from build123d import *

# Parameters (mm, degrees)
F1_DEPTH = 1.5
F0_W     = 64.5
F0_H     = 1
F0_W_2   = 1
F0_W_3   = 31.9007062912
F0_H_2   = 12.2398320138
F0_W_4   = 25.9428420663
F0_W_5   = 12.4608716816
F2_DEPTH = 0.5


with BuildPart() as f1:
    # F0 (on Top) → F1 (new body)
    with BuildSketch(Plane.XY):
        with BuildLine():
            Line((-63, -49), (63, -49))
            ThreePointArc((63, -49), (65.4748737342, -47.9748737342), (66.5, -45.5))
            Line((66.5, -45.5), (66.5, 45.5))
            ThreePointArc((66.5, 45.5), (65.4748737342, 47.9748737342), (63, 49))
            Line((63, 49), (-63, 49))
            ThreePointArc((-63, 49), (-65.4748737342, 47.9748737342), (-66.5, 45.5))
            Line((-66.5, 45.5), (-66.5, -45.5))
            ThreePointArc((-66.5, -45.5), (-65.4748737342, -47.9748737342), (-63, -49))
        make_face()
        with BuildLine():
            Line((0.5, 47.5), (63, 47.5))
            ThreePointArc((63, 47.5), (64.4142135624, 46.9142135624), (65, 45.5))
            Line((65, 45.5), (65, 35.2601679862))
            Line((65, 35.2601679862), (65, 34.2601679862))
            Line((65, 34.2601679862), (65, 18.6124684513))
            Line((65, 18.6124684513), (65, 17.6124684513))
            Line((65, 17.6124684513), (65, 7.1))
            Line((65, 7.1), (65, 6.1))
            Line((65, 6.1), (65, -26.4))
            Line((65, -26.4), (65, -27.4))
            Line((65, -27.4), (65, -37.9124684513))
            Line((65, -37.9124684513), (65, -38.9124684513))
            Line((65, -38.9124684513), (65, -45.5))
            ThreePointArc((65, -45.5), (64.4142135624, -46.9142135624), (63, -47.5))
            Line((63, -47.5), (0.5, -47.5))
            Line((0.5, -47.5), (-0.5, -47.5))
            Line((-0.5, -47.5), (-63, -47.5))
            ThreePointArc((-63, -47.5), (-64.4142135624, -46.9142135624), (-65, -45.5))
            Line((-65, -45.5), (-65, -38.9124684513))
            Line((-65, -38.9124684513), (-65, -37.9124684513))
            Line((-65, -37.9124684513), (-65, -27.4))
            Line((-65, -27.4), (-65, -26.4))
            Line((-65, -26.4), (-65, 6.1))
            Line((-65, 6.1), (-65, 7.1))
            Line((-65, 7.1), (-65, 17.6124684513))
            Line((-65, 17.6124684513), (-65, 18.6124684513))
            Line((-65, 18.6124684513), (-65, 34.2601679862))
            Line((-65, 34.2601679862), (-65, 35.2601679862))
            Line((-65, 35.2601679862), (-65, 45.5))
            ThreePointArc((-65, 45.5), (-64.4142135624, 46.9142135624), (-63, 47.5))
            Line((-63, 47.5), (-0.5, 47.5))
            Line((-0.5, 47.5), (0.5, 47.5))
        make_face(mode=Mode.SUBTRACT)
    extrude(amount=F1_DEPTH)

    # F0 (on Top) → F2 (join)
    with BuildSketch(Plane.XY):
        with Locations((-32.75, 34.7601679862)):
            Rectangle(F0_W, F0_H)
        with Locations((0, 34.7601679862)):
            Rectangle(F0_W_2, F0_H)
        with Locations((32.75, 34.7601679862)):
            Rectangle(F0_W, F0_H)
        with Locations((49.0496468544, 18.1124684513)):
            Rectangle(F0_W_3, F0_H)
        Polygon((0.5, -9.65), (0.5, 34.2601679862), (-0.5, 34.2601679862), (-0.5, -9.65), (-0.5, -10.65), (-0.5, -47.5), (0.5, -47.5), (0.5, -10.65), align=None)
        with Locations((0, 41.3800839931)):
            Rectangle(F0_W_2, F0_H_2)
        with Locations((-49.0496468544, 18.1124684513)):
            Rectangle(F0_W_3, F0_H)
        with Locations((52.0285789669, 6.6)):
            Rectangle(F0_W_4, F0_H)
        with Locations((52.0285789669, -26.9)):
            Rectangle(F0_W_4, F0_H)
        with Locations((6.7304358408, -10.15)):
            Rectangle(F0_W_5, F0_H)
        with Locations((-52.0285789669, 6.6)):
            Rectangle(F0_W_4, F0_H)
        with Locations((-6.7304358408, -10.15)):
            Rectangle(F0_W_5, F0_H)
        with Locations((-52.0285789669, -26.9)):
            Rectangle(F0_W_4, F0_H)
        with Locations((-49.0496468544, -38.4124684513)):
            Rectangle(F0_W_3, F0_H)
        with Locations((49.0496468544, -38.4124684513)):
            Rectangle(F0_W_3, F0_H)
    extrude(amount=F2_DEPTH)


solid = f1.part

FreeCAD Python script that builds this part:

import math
import FreeCAD as App
import Part
import Sketcher
Q = App.Units.Quantity

doc = App.newDocument("Part")
body = doc.addObject("PartDesign::Body", "Body")

# Sketch on XY plane
sketch1 = body.newObject("Sketcher::SketchObject", "Sketch")
sketch1.AttachmentSupport = (doc.getObject("XY_Plane"), [""])
sketch1.MapMode = "FlatFace"
sketch1.addGeometry(Part.LineSegment(App.Vector(-63, -49, 0), App.Vector(63, -49, 0)), False)
sketch1.addGeometry(Part.ArcOfCircle(Part.Circle(App.Vector(63, -45.5, 0), App.Vector(0, 0, 1), 3.5), math.radians(-90), math.radians(0)), False)
sketch1.addGeometry(Part.LineSegment(App.Vector(66.5, -45.5, 0), App.Vector(66.5, 45.5, 0)), False)
sketch1.addGeometry(Part.ArcOfCircle(Part.Circle(App.Vector(63, 45.5, 0), App.Vector(0, 0, 1), 3.5), math.radians(0), math.radians(90)), False)
sketch1.addGeometry(Part.LineSegment(App.Vector(63, 49, 0), App.Vector(-63, 49, 0)), False)
sketch1.addGeometry(Part.ArcOfCircle(Part.Circle(App.Vector(-63, 45.5, 0), App.Vector(0, 0, 1), 3.5), math.radians(90), math.radians(180)), False)
sketch1.addGeometry(Part.LineSegment(App.Vector(-66.5, 45.5, 0), App.Vector(-66.5, -45.5, 0)), False)
sketch1.addGeometry(Part.ArcOfCircle(Part.Circle(App.Vector(-63, -45.5, 0), App.Vector(0, 0, 1), 3.5), math.radians(180), math.radians(270)), False)
sketch1.addGeometry(Part.LineSegment(App.Vector(-63, 47.5, 0), App.Vector(63, 47.5, 0)), False)
sketch1.addGeometry(Part.ArcOfCircle(Part.Circle(App.Vector(63, 45.5, 0), App.Vector(0, 0, 1), 2), math.radians(0), math.radians(90)), False)
sketch1.addGeometry(Part.LineSegment(App.Vector(65, 45.5, 0), App.Vector(65, -45.5, 0)), False)
sketch1.addGeometry(Part.ArcOfCircle(Part.Circle(App.Vector(63, -45.5, 0), App.Vector(0, 0, 1), 2), math.radians(-90), math.radians(0)), False)
sketch1.addGeometry(Part.LineSegment(App.Vector(63, -47.5, 0), App.Vector(-63, -47.5, 0)), False)
sketch1.addGeometry(Part.ArcOfCircle(Part.Circle(App.Vector(-63, -45.5, 0), App.Vector(0, 0, 1), 2), math.radians(180), math.radians(270)), False)
sketch1.addGeometry(Part.LineSegment(App.Vector(-65, -45.5, 0), App.Vector(-65, 45.5, 0)), False)
sketch1.addGeometry(Part.ArcOfCircle(Part.Circle(App.Vector(-63, 45.5, 0), App.Vector(0, 0, 1), 2), math.radians(90), math.radians(180)), False)
sketch1.addConstraint(Sketcher.Constraint("Tangent", 0, 2, 1, 1))
sketch1.addConstraint(Sketcher.Constraint("Tangent", 1, 2, 2, 1))
sketch1.addConstraint(Sketcher.Constraint("Tangent", 2, 2, 3, 1))
sketch1.addConstraint(Sketcher.Constraint("Tangent", 3, 2, 4, 1))
sketch1.addConstraint(Sketcher.Constraint("Tangent", 4, 2, 5, 1))
sketch1.addConstraint(Sketcher.Constraint("Tangent", 5, 2, 6, 1))
sketch1.addConstraint(Sketcher.Constraint("Tangent", 6, 2, 7, 1))
sketch1.addConstraint(Sketcher.Constraint("Tangent", 7, 2, 0, 1))
sketch1.addConstraint(Sketcher.Constraint("Tangent", 8, 2, 9, 2))
sketch1.addConstraint(Sketcher.Constraint("Tangent", 9, 1, 10, 1))
sketch1.addConstraint(Sketcher.Constraint("Tangent", 10, 2, 11, 2))
sketch1.addConstraint(Sketcher.Constraint("Tangent", 11, 1, 12, 1))
sketch1.addConstraint(Sketcher.Constraint("Tangent", 12, 2, 13, 2))
sketch1.addConstraint(Sketcher.Constraint("Tangent", 13, 1, 14, 1))
sketch1.addConstraint(Sketcher.Constraint("Tangent", 14, 2, 15, 2))
sketch1.addConstraint(Sketcher.Constraint("Tangent", 15, 1, 8, 1))
sketch1.addConstraint(Sketcher.Constraint("Horizontal", 0))
sketch1.addConstraint(Sketcher.Constraint("Vertical", 2))
sketch1.addConstraint(Sketcher.Constraint("Horizontal", 4))
sketch1.addConstraint(Sketcher.Constraint("Vertical", 6))
sketch1.addConstraint(Sketcher.Constraint("Horizontal", 8))
sketch1.addConstraint(Sketcher.Constraint("Vertical", 10))
sketch1.addConstraint(Sketcher.Constraint("Horizontal", 12))
sketch1.addConstraint(Sketcher.Constraint("Vertical", 14))
sketch1.addConstraint(Sketcher.Constraint("Coincident", 9, 3, 3, 3))
sketch1.addConstraint(Sketcher.Constraint("Coincident", 11, 3, 1, 3))
sketch1.addConstraint(Sketcher.Constraint("Coincident", 13, 3, 7, 3))
sketch1.addConstraint(Sketcher.Constraint("Equal", 1, 3))
sketch1.addConstraint(Sketcher.Constraint("Equal", 3, 5))
sketch1.addConstraint(Sketcher.Constraint("Equal", 5, 7))
sketch1.addConstraint(Sketcher.Constraint("Equal", 13, 15))
sketch1.addConstraint(Sketcher.Constraint("Symmetric", 1, 3, 5, 3, -1, 1))
sketch1.addConstraint(Sketcher.Constraint("Radius", 9, Q("2 mm")))
sketch1.addConstraint(Sketcher.Constraint("Radius", 1, Q("3.5 mm")))
sketch1.addConstraint(Sketcher.Constraint("DistanceX", 0, 1, 0, 2, Q("126 mm")))
sketch1.addConstraint(Sketcher.Constraint("DistanceY", 2, 1, 2, 2, Q("91 mm")))
pad1 = body.newObject("PartDesign::Pad", "Pad")
pad1.Profile = sketch1
pad1.Length = 1.5

# Sketch on XY plane
sketch2 = body.newObject("Sketcher::SketchObject", "Sketch001")
sketch2.AttachmentSupport = (doc.getObject("XY_Plane"), [""])
sketch2.MapMode = "FlatFace"
sketch2.addGeometry(Part.LineSegment(App.Vector(-65, 35.260168, 0), App.Vector(-65, 34.260168, 0)), False)
sketch2.addGeometry(Part.LineSegment(App.Vector(-65, 34.260168, 0), App.Vector(-0.5, 34.260168, 0)), False)
sketch2.addGeometry(Part.LineSegment(App.Vector(-0.5, 34.260168, 0), App.Vector(-0.5, -9.65, 0)), False)
sketch2.addGeometry(Part.LineSegment(App.Vector(-0.5, -9.65, 0), App.Vector(-12.960872, -9.65, 0)), False)
sketch2.addGeometry(Part.LineSegment(App.Vector(-12.960872, -9.65, 0), App.Vector(-12.960872, -10.65, 0)), False)
sketch2.addGeometry(Part.LineSegment(App.Vector(-12.960872, -10.65, 0), App.Vector(-0.5, -10.65, 0)), False)
sketch2.addGeometry(Part.LineSegment(App.Vector(-0.5, -10.65, 0), App.Vector(-0.5, -47.5, 0)), False)
sketch2.addGeometry(Part.LineSegment(App.Vector(-0.5, -47.5, 0), App.Vector(0.5, -47.5, 0)), False)
sketch2.addGeometry(Part.LineSegment(App.Vector(0.5, -47.5, 0), App.Vector(0.5, -10.65, 0)), False)
sketch2.addGeometry(Part.LineSegment(App.Vector(0.5, -10.65, 0), App.Vector(12.960872, -10.65, 0)), False)
sketch2.addGeometry(Part.LineSegment(App.Vector(12.960872, -10.65, 0), App.Vector(12.960872, -9.65, 0)), False)
sketch2.addGeometry(Part.LineSegment(App.Vector(12.960872, -9.65, 0), App.Vector(0.5, -9.65, 0)), False)
sketch2.addGeometry(Part.LineSegment(App.Vector(0.5, -9.65, 0), App.Vector(0.5, 34.260168, 0)), False)
sketch2.addGeometry(Part.LineSegment(App.Vector(0.5, 34.260168, 0), App.Vector(65, 34.260168, 0)), False)
sketch2.addGeometry(Part.LineSegment(App.Vector(65, 34.260168, 0), App.Vector(65, 35.260168, 0)), False)
sketch2.addGeometry(Part.LineSegment(App.Vector(65, 35.260168, 0), App.Vector(0.5, 35.260168, 0)), False)
sketch2.addGeometry(Part.LineSegment(App.Vector(0.5, 35.260168, 0), App.Vector(0.5, 47.5, 0)), False)
sketch2.addGeometry(Part.LineSegment(App.Vector(0.5, 47.5, 0), App.Vector(-0.5, 47.5, 0)), False)
sketch2.addGeometry(Part.LineSegment(App.Vector(-0.5, 47.5, 0), App.Vector(-0.5, 35.260168, 0)), False)
sketch2.addGeometry(Part.LineSegment(App.Vector(-0.5, 35.260168, 0), App.Vector(-65, 35.260168, 0)), False)
sketch2.addGeometry(Part.LineSegment(App.Vector(33.099294, 18.612468, 0), App.Vector(33.099294, 17.612468, 0)), False)
sketch2.addGeometry(Part.LineSegment(App.Vector(33.099294, 17.612468, 0), App.Vector(65, 17.612468, 0)), False)
sketch2.addGeometry(Part.LineSegment(App.Vector(65, 17.612468, 0), App.Vector(65, 18.612468, 0)), False)
sketch2.addGeometry(Part.LineSegment(App.Vector(65, 18.612468, 0), App.Vector(33.099294, 18.612468, 0)), False)
sketch2.addGeometry(Part.LineSegment(App.Vector(-65, 18.612468, 0), App.Vector(-65, 17.612468, 0)), False)
sketch2.addGeometry(Part.LineSegment(App.Vector(-65, 17.612468, 0), App.Vector(-33.099294, 17.612468, 0)), False)
sketch2.addGeometry(Part.LineSegment(App.Vector(-33.099294, 17.612468, 0), App.Vector(-33.099294, 18.612468, 0)), False)
sketch2.addGeometry(Part.LineSegment(App.Vector(-33.099294, 18.612468, 0), App.Vector(-65, 18.612468, 0)), False)
sketch2.addGeometry(Part.LineSegment(App.Vector(39.057158, 7.1, 0), App.Vector(39.057158, 6.1, 0)), False)
sketch2.addGeometry(Part.LineSegment(App.Vector(39.057158, 6.1, 0), App.Vector(65, 6.1, 0)), False)
sketch2.addGeometry(Part.LineSegment(App.Vector(65, 6.1, 0), App.Vector(65, 7.1, 0)), False)
sketch2.addGeometry(Part.LineSegment(App.Vector(65, 7.1, 0), App.Vector(39.057158, 7.1, 0)), False)
sketch2.addGeometry(Part.LineSegment(App.Vector(39.057158, -26.4, 0), App.Vector(39.057158, -27.4, 0)), False)
sketch2.addGeometry(Part.LineSegment(App.Vector(39.057158, -27.4, 0), App.Vector(65, -27.4, 0)), False)
sketch2.addGeometry(Part.LineSegment(App.Vector(65, -27.4, 0), App.Vector(65, -26.4, 0)), False)
sketch2.addGeometry(Part.LineSegment(App.Vector(65, -26.4, 0), App.Vector(39.057158, -26.4, 0)), False)
sketch2.addGeometry(Part.LineSegment(App.Vector(-65, 7.1, 0), App.Vector(-65, 6.1, 0)), False)
sketch2.addGeometry(Part.LineSegment(App.Vector(-65, 6.1, 0), App.Vector(-39.057158, 6.1, 0)), False)
sketch2.addGeometry(Part.LineSegment(App.Vector(-39.057158, 6.1, 0), App.Vector(-39.057158, 7.1, 0)), False)
sketch2.addGeometry(Part.LineSegment(App.Vector(-39.057158, 7.1, 0), App.Vector(-65, 7.1, 0)), False)
sketch2.addGeometry(Part.LineSegment(App.Vector(-65, -26.4, 0), App.Vector(-65, -27.4, 0)), False)
sketch2.addGeometry(Part.LineSegment(App.Vector(-65, -27.4, 0), App.Vector(-39.057158, -27.4, 0)), False)
sketch2.addGeometry(Part.LineSegment(App.Vector(-39.057158, -27.4, 0), App.Vector(-39.057158, -26.4, 0)), False)
sketch2.addGeometry(Part.LineSegment(App.Vector(-39.057158, -26.4, 0), App.Vector(-65, -26.4, 0)), False)
sketch2.addGeometry(Part.LineSegment(App.Vector(-65, -37.912468, 0), App.Vector(-65, -38.912468, 0)), False)
sketch2.addGeometry(Part.LineSegment(App.Vector(-65, -38.912468, 0), App.Vector(-33.099294, -38.912468, 0)), False)
sketch2.addGeometry(Part.LineSegment(App.Vector(-33.099294, -38.912468, 0), App.Vector(-33.099294, -37.912468, 0)), False)
sketch2.addGeometry(Part.LineSegment(App.Vector(-33.099294, -37.912468, 0), App.Vector(-65, -37.912468, 0)), False)
sketch2.addGeometry(Part.LineSegment(App.Vector(33.099294, -37.912468, 0), App.Vector(33.099294, -38.912468, 0)), False)
sketch2.addGeometry(Part.LineSegment(App.Vector(33.099294, -38.912468, 0), App.Vector(65, -38.912468, 0)), False)
sketch2.addGeometry(Part.LineSegment(App.Vector(65, -38.912468, 0), App.Vector(65, -37.912468, 0)), False)
sketch2.addGeometry(Part.LineSegment(App.Vector(65, -37.912468, 0), App.Vector(33.099294, -37.912468, 0)), False)
sketch2.addConstraint(Sketcher.Constraint("Coincident", 0, 2, 1, 1))
sketch2.addConstraint(Sketcher.Constraint("Coincident", 1, 2, 2, 1))
sketch2.addConstraint(Sketcher.Constraint("Coincident", 2, 2, 3, 1))
sketch2.addConstraint(Sketcher.Constraint("Coincident", 3, 2, 4, 1))
sketch2.addConstraint(Sketcher.Constraint("Coincident", 4, 2, 5, 1))
sketch2.addConstraint(Sketcher.Constraint("Coincident", 5, 2, 6, 1))
sketch2.addConstraint(Sketcher.Constraint("Coincident", 6, 2, 7, 1))
sketch2.addConstraint(Sketcher.Constraint("Coincident", 7, 2, 8, 1))
sketch2.addConstraint(Sketcher.Constraint("Coincident", 8, 2, 9, 1))
sketch2.addConstraint(Sketcher.Constraint("Coincident", 9, 2, 10, 1))
sketch2.addConstraint(Sketcher.Constraint("Coincident", 10, 2, 11, 1))
sketch2.addConstraint(Sketcher.Constraint("Coincident", 11, 2, 12, 1))
sketch2.addConstraint(Sketcher.Constraint("Coincident", 12, 2, 13, 1))
sketch2.addConstraint(Sketcher.Constraint("Coincident", 13, 2, 14, 1))
sketch2.addConstraint(Sketcher.Constraint("Coincident", 14, 2, 15, 1))
sketch2.addConstraint(Sketcher.Constraint("Coincident", 15, 2, 16, 1))
sketch2.addConstraint(Sketcher.Constraint("Coincident", 16, 2, 17, 1))
sketch2.addConstraint(Sketcher.Constraint("Coincident", 17, 2, 18, 1))
sketch2.addConstraint(Sketcher.Constraint("Coincident", 18, 2, 19, 1))
sketch2.addConstraint(Sketcher.Constraint("Coincident", 19, 2, 0, 1))
sketch2.addConstraint(Sketcher.Constraint("Coincident", 20, 2, 21, 1))
sketch2.addConstraint(Sketcher.Constraint("Coincident", 21, 2, 22, 1))
sketch2.addConstraint(Sketcher.Constraint("Coincident", 22, 2, 23, 1))
sketch2.addConstraint(Sketcher.Constraint("Coincident", 23, 2, 20, 1))
sketch2.addConstraint(Sketcher.Constraint("Coincident", 24, 2, 25, 1))
sketch2.addConstraint(Sketcher.Constraint("Coincident", 25, 2, 26, 1))
sketch2.addConstraint(Sketcher.Constraint("Coincident", 26, 2, 27, 1))
sketch2.addConstraint(Sketcher.Constraint("Coincident", 27, 2, 24, 1))
sketch2.addConstraint(Sketcher.Constraint("Coincident", 28, 2, 29, 1))
sketch2.addConstraint(Sketcher.Constraint("Coincident", 29, 2, 30, 1))
sketch2.addConstraint(Sketcher.Constraint("Coincident", 30, 2, 31, 1))
sketch2.addConstraint(Sketcher.Constraint("Coincident", 31, 2, 28, 1))
sketch2.addConstraint(Sketcher.Constraint("Coincident", 32, 2, 33, 1))
sketch2.addConstraint(Sketcher.Constraint("Coincident", 33, 2, 34, 1))
sketch2.addConstraint(Sketcher.Constraint("Coincident", 34, 2, 35, 1))
sketch2.addConstraint(Sketcher.Constraint("Coincident", 35, 2, 32, 1))
sketch2.addConstraint(Sketcher.Constraint("Coincident", 36, 2, 37, 1))
sketch2.addConstraint(Sketcher.Constraint("Coincident", 37, 2, 38, 1))
sketch2.addConstraint(Sketcher.Constraint("Coincident", 38, 2, 39, 1))
sketch2.addConstraint(Sketcher.Constraint("Coincident", 39, 2, 36, 1))
sketch2.addConstraint(Sketcher.Constraint("Coincident", 40, 2, 41, 1))
sketch2.addConstraint(Sketcher.Constraint("Coincident", 41, 2, 42, 1))
sketch2.addConstraint(Sketcher.Constraint("Coincident", 42, 2, 43, 1))
sketch2.addConstraint(Sketcher.Constraint("Coincident", 43, 2, 40, 1))
sketch2.addConstraint(Sketcher.Constraint("Coincident", 44, 2, 45, 1))
sketch2.addConstraint(Sketcher.Constraint("Coincident", 45, 2, 46, 1))
sketch2.addConstraint(Sketcher.Constraint("Coincident", 46, 2, 47, 1))
sketch2.addConstraint(Sketcher.Constraint("Coincident", 47, 2, 44, 1))
sketch2.addConstraint(Sketcher.Constraint("Coincident", 48, 2, 49, 1))
sketch2.addConstraint(Sketcher.Constraint("Coincident", 49, 2, 50, 1))
sketch2.addConstraint(Sketcher.Constraint("Coincident", 50, 2, 51, 1))
sketch2.addConstraint(Sketcher.Constraint("Coincident", 51, 2, 48, 1))
sketch2.addConstraint(Sketcher.Constraint("Vertical", 0))
sketch2.addConstraint(Sketcher.Constraint("Horizontal", 1))
sketch2.addConstraint(Sketcher.Constraint("Vertical", 2))
sketch2.addConstraint(Sketcher.Constraint("Horizontal", 3))
sketch2.addConstraint(Sketcher.Constraint("Vertical", 4))
sketch2.addConstraint(Sketcher.Constraint("Horizontal", 5))
sketch2.addConstraint(Sketcher.Constraint("Vertical", 6))
sketch2.addConstraint(Sketcher.Constraint("Horizontal", 7))
sketch2.addConstraint(Sketcher.Constraint("Vertical", 8))
sketch2.addConstraint(Sketcher.Constraint("Horizontal", 9))
sketch2.addConstraint(Sketcher.Constraint("Vertical", 10))
sketch2.addConstraint(Sketcher.Constraint("Horizontal", 11))
sketch2.addConstraint(Sketcher.Constraint("Vertical", 12))
sketch2.addConstraint(Sketcher.Constraint("Horizontal", 13))
sketch2.addConstraint(Sketcher.Constraint("Vertical", 14))
sketch2.addConstraint(Sketcher.Constraint("Horizontal", 15))
sketch2.addConstraint(Sketcher.Constraint("Vertical", 16))
sketch2.addConstraint(Sketcher.Constraint("Horizontal", 17))
sketch2.addConstraint(Sketcher.Constraint("Vertical", 18))
sketch2.addConstraint(Sketcher.Constraint("Horizontal", 19))
sketch2.addConstraint(Sketcher.Constraint("Vertical", 20))
sketch2.addConstraint(Sketcher.Constraint("Horizontal", 21))
sketch2.addConstraint(Sketcher.Constraint("Vertical", 22))
sketch2.addConstraint(Sketcher.Constraint("Horizontal", 23))
sketch2.addConstraint(Sketcher.Constraint("Vertical", 24))
sketch2.addConstraint(Sketcher.Constraint("Horizontal", 25))
sketch2.addConstraint(Sketcher.Constraint("Vertical", 26))
sketch2.addConstraint(Sketcher.Constraint("Horizontal", 27))
sketch2.addConstraint(Sketcher.Constraint("Vertical", 28))
sketch2.addConstraint(Sketcher.Constraint("Horizontal", 29))
sketch2.addConstraint(Sketcher.Constraint("Vertical", 30))
sketch2.addConstraint(Sketcher.Constraint("Horizontal", 31))
sketch2.addConstraint(Sketcher.Constraint("Vertical", 32))
sketch2.addConstraint(Sketcher.Constraint("Horizontal", 33))
sketch2.addConstraint(Sketcher.Constraint("Vertical", 34))
sketch2.addConstraint(Sketcher.Constraint("Horizontal", 35))
sketch2.addConstraint(Sketcher.Constraint("Vertical", 36))
sketch2.addConstraint(Sketcher.Constraint("Horizontal", 37))
sketch2.addConstraint(Sketcher.Constraint("Vertical", 38))
sketch2.addConstraint(Sketcher.Constraint("Horizontal", 39))
sketch2.addConstraint(Sketcher.Constraint("Vertical", 40))
sketch2.addConstraint(Sketcher.Constraint("Horizontal", 41))
sketch2.addConstraint(Sketcher.Constraint("Vertical", 42))
sketch2.addConstraint(Sketcher.Constraint("Horizontal", 43))
sketch2.addConstraint(Sketcher.Constraint("Vertical", 44))
sketch2.addConstraint(Sketcher.Constraint("Horizontal", 45))
sketch2.addConstraint(Sketcher.Constraint("Vertical", 46))
sketch2.addConstraint(Sketcher.Constraint("Horizontal", 47))
sketch2.addConstraint(Sketcher.Constraint("Vertical", 48))
sketch2.addConstraint(Sketcher.Constraint("Horizontal", 49))
sketch2.addConstraint(Sketcher.Constraint("Vertical", 50))
sketch2.addConstraint(Sketcher.Constraint("Horizontal", 51))
sketch2.addConstraint(Sketcher.Constraint("Symmetric", 6, 2, 16, 2, -1, 1))
sketch2.addConstraint(Sketcher.Constraint("Symmetric", 5, 2, 8, 2, -2))
sketch2.addConstraint(Sketcher.Constraint("Symmetric", 3, 2, 10, 2, -2))
sketch2.addConstraint(Sketcher.Constraint("Symmetric", 1, 2, 12, 2, -2))
sketch2.addConstraint(Sketcher.Constraint("Symmetric", 15, 2, 18, 2, -2))
sketch2.addConstraint(Sketcher.Constraint("Symmetric", 21, 2, 24, 2, -2))
sketch2.addConstraint(Sketcher.Constraint("Symmetric", 23, 2, 26, 2, -2))
sketch2.addConstraint(Sketcher.Constraint("Symmetric", 29, 2, 36, 2, -2))
sketch2.addConstraint(Sketcher.Constraint("Symmetric", 31, 2, 38, 2, -2))
sketch2.addConstraint(Sketcher.Constraint("Symmetric", 33, 2, 40, 2, -2))
sketch2.addConstraint(Sketcher.Constraint("Symmetric", 35, 2, 42, 2, -2))
sketch2.addConstraint(Sketcher.Constraint("Symmetric", 45, 2, 48, 2, -2))
sketch2.addConstraint(Sketcher.Constraint("Symmetric", 47, 2, 50, 2, -2))
sketch2.addConstraint(Sketcher.Constraint("Vertical", 2, 2, 5, 2))
sketch2.addConstraint(Sketcher.Constraint("Vertical", 14, 2, 21, 2))
sketch2.addConstraint(Sketcher.Constraint("Vertical", 19, 2, 24, 2))
sketch2.addConstraint(Sketcher.Constraint("Vertical", 22, 2, 29, 2))
sketch2.addConstraint(Sketcher.Constraint("Vertical", 31, 2, 32, 2))
sketch2.addConstraint(Sketcher.Constraint("Vertical", 30, 2, 33, 2))
sketch2.addConstraint(Sketcher.Constraint("Vertical", 43, 2, 44, 2))
sketch2.addConstraint(Sketcher.Constraint("Vertical", 26, 2, 45, 2))
sketch2.addConstraint(Sketcher.Constraint("Equal", 17, 0))
sketch2.addConstraint(Sketcher.Constraint("Equal", 0, 4))
sketch2.addConstraint(Sketcher.Constraint("Equal", 14, 20))
sketch2.addConstraint(Sketcher.Constraint("Equal", 26, 28))
sketch2.addConstraint(Sketcher.Constraint("Equal", 30, 32))
sketch2.addConstraint(Sketcher.Constraint("Equal", 42, 44))
sketch2.addConstraint(Sketcher.Constraint("DistanceX", 7, 1, 7, 2, Q("1 mm")))
sketch2.addConstraint(Sketcher.Constraint("DistanceX", 1, 1, 1, 2, Q("64.5 mm")))
sketch2.addConstraint(Sketcher.Constraint("DistanceY", 6, 2, 6, 1, Q("36.85 mm")))
sketch2.addConstraint(Sketcher.Constraint("DistanceY", 6, 2, -1, 1, Q("47.5 mm")))
sketch2.addConstraint(Sketcher.Constraint("DistanceY", -1, 1, 28, 2, Q("6.1 mm")))
sketch2.addConstraint(Sketcher.Constraint("DistanceY", 32, 2, -1, 1, Q("27.4 mm")))
sketch2.addConstraint(Sketcher.Constraint("DistanceX", 3, 2, 3, 1, Q("12.460872 mm")))
sketch2.addConstraint(Sketcher.Constraint("DistanceY", 20, 2, 13, 2, Q("16.6477 mm")))
sketch2.addConstraint(Sketcher.Constraint("DistanceX", 21, 1, 21, 2, Q("31.900706 mm")))
sketch2.addConstraint(Sketcher.Constraint("DistanceX", 29, 1, 29, 2, Q("25.942842 mm")))
sketch2.addConstraint(Sketcher.Constraint("DistanceY", 2, 2, 2, 1, Q("43.910168 mm")))
sketch2.addConstraint(Sketcher.Constraint("DistanceY", 44, 2, -1, 1, Q("38.912468 mm")))
pad2 = body.newObject("PartDesign::Pad", "Pad001")
pad2.Profile = sketch2
pad2.Length = 0.5

doc.recompute()
